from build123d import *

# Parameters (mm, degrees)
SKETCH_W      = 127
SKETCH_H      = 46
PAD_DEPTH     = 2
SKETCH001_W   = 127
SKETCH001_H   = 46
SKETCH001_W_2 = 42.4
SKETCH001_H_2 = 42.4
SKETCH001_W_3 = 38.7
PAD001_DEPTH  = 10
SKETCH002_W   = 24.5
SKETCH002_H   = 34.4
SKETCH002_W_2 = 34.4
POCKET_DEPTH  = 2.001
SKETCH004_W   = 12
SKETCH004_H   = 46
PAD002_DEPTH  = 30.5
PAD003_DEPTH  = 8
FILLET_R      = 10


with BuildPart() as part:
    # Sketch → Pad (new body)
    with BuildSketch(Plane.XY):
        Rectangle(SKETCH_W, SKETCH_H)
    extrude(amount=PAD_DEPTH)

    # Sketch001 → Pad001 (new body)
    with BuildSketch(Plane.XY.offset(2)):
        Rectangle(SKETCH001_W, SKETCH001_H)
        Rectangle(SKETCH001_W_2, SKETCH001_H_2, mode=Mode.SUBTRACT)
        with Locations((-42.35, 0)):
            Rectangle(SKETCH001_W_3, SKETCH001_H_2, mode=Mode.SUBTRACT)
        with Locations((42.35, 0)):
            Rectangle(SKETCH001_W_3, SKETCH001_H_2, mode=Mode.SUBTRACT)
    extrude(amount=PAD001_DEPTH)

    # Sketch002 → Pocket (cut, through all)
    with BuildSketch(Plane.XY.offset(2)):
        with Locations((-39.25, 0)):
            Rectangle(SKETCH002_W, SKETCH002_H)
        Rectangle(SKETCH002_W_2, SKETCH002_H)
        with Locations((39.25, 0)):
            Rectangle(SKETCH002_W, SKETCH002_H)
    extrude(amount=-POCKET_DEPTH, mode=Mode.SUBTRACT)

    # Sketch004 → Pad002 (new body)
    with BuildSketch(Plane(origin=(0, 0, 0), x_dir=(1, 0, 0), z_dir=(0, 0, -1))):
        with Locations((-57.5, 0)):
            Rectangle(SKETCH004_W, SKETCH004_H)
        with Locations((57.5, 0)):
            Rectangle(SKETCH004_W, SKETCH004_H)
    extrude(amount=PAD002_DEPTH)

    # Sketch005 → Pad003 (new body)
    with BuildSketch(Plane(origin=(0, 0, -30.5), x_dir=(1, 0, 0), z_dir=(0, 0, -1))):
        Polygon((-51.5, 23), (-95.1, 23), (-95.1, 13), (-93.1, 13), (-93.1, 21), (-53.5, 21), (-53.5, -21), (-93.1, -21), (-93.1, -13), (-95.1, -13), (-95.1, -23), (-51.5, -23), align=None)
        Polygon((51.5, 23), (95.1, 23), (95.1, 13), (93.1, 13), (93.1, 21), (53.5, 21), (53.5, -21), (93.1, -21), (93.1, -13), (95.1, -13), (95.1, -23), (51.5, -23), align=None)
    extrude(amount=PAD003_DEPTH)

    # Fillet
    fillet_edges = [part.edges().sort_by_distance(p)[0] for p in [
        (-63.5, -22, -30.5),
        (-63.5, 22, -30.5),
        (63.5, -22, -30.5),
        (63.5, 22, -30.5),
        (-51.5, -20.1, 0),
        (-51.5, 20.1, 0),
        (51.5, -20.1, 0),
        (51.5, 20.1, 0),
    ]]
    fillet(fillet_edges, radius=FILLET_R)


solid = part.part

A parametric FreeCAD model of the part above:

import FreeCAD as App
import Part
import Sketcher


def edges_at(feature, points):
    """Names of the edges that pass closest to the given points."""
    edges = feature.Shape.Edges
    near = lambda p: min(range(len(edges)), key=lambda i: edges[i].distToShape(Part.Vertex(*p))[0])
    return sorted({f"Edge{near(p) + 1}" for p in points})

doc = App.newDocument("Part")
body = doc.addObject("PartDesign::Body", "Body")

# Sketch on XY plane
sketch1 = doc.addObject("Sketcher::SketchObject", "Sketch")
body.addObject(sketch1)
sketch1.AttachmentSupport = (doc.XY_Plane, [""])
sketch1.MapMode = "FlatFace"
sketch1.addGeometry(Part.LineSegment(App.Vector(-63.5, 23, 0), App.Vector(-63.5, -23, 0)), False)
sketch1.addGeometry(Part.LineSegment(App.Vector(-63.5, -23, 0), App.Vector(63.5, -23, 0)), False)
sketch1.addGeometry(Part.LineSegment(App.Vector(63.5, -23, 0), App.Vector(63.5, 23, 0)), False)
sketch1.addGeometry(Part.LineSegment(App.Vector(63.5, 23, 0), App.Vector(-63.5, 23, 0)), False)
sketch1.addConstraint(Sketcher.Constraint("Coincident", 0, 2, 1, 1))
sketch1.addConstraint(Sketcher.Constraint("Coincident", 1, 2, 2, 1))
sketch1.addConstraint(Sketcher.Constraint("Coincident", 2, 2, 3, 1))
sketch1.addConstraint(Sketcher.Constraint("Coincident", 3, 2, 0, 1))
sketch1.addConstraint(Sketcher.Constraint("Vertical", 0))
sketch1.addConstraint(Sketcher.Constraint("Horizontal", 1))
sketch1.addConstraint(Sketcher.Constraint("Vertical", 2))
sketch1.addConstraint(Sketcher.Constraint("Horizontal", 3))
sketch1.addConstraint(Sketcher.Constraint("Symmetric", 0, 2, 2, 2, -1, 1))
sketch1.addConstraint(Sketcher.Constraint("DistanceX", 1, 1, 1, 2, 127.0))
sketch1.addConstraint(Sketcher.Constraint("DistanceY", 0, 2, 0, 1, 46.0))
pad1 = doc.addObject("PartDesign::Pad", "Pad")
body.addObject(pad1)
pad1.Profile = sketch1
pad1.Length = 2

# Sketch on XY plane
sketch2 = doc.addObject("Sketcher::SketchObject", "Sketch001")
body.addObject(sketch2)
sketch2.AttachmentSupport = (doc.XY_Plane, [""])
sketch2.MapMode = "FlatFace"
sketch2.AttachmentOffset = App.Placement(App.Vector(0, 0, 2), App.Rotation())
sketch2.addGeometry(Part.LineSegment(App.Vector(-63.5, 23, 0), App.Vector(-63.5, -23, 0)), False)
sketch2.addGeometry(Part.LineSegment(App.Vector(-63.5, -23, 0), App.Vector(63.5, -23, 0)), False)
sketch2.addGeometry(Part.LineSegment(App.Vector(63.5, -23, 0), App.Vector(63.5, 23, 0)), False)
sketch2.addGeometry(Part.LineSegment(App.Vector(63.5, 23, 0), App.Vector(-63.5, 23, 0)), False)
sketch2.addGeometry(Part.LineSegment(App.Vector(-23, -21.2, 0), App.Vector(-61.7, -21.2, 0)), False)
sketch2.addGeometry(Part.LineSegment(App.Vector(-61.7, -21.2, 0), App.Vector(-61.7, 21.2, 0)), False)
sketch2.addGeometry(Part.LineSegment(App.Vector(-61.7, 21.2, 0), App.Vector(-23, 21.2, 0)), False)
sketch2.addGeometry(Part.LineSegment(App.Vector(-23, 21.2, 0), App.Vector(-23, -21.2, 0)), False)
sketch2.addGeometry(Part.LineSegment(App.Vector(21.2, -21.2, 0), App.Vector(-21.2, -21.2, 0)), False)
sketch2.addGeometry(Part.LineSegment(App.Vector(-21.2, -21.2, 0), App.Vector(-21.2, 21.2, 0)), False)
sketch2.addGeometry(Part.LineSegment(App.Vector(-21.2, 21.2, 0), App.Vector(21.2, 21.2, 0)), False)
sketch2.addGeometry(Part.LineSegment(App.Vector(21.2, 21.2, 0), App.Vector(21.2, -21.2, 0)), False)
sketch2.addGeometry(Part.LineSegment(App.Vector(61.7, -21.2, 0), App.Vector(23, -21.2, 0)), False)
sketch2.addGeometry(Part.LineSegment(App.Vector(23, -21.2, 0), App.Vector(23, 21.2, 0)), False)
sketch2.addGeometry(Part.LineSegment(App.Vector(23, 21.2, 0), App.Vector(61.7, 21.2, 0)), False)
sketch2.addGeometry(Part.LineSegment(App.Vector(61.7, 21.2, 0), App.Vector(61.7, -21.2, 0)), False)
sketch2.addConstraint(Sketcher.Constraint("Coincident", 0, 2, 1, 1))
sketch2.addConstraint(Sketcher.Constraint("Coincident", 1, 2, 2, 1))
sketch2.addConstraint(Sketcher.Constraint("Coincident", 2, 2, 3, 1))
sketch2.addConstraint(Sketcher.Constraint("Coincident", 3, 2, 0, 1))
sketch2.addConstraint(Sketcher.Constraint("Coincident", 4, 2, 5, 1))
sketch2.addConstraint(Sketcher.Constraint("Coincident", 5, 2, 6, 1))
sketch2.addConstraint(Sketcher.Constraint("Coincident", 6, 2, 7, 1))
sketch2.addConstraint(Sketcher.Constraint("Coincident", 7, 2, 4, 1))
sketch2.addConstraint(Sketcher.Constraint("Coincident", 8, 2, 9, 1))
sketch2.addConstraint(Sketcher.Constraint("Coincident", 9, 2, 10, 1))
sketch2.addConstraint(Sketcher.Constraint("Coincident", 10, 2, 11, 1))
sketch2.addConstraint(Sketcher.Constraint("Coincident", 11, 2, 8, 1))
sketch2.addConstraint(Sketcher.Constraint("Coincident", 12, 2, 13, 1))
sketch2.addConstraint(Sketcher.Constraint("Coincident", 13, 2, 14, 1))
sketch2.addConstraint(Sketcher.Constraint("Coincident", 14, 2, 15, 1))
sketch2.addConstraint(Sketcher.Constraint("Coincident", 15, 2, 12, 1))
sketch2.addConstraint(Sketcher.Constraint("Vertical", 0))
sketch2.addConstraint(Sketcher.Constraint("Horizontal", 1))
sketch2.addConstraint(Sketcher.Constraint("Vertical", 2))
sketch2.addConstraint(Sketcher.Constraint("Horizontal", 3))
sketch2.addConstraint(Sketcher.Constraint("Horizontal", 4))
sketch2.addConstraint(Sketcher.Constraint("Vertical", 5))
sketch2.addConstraint(Sketcher.Constraint("Horizontal", 6))
sketch2.addConstraint(Sketcher.Constraint("Vertical", 7))
sketch2.addConstraint(Sketcher.Constraint("Horizontal", 8))
sketch2.addConstraint(Sketcher.Constraint("Vertical", 9))
sketch2.addConstraint(Sketcher.Constraint("Horizontal", 10))
sketch2.addConstraint(Sketcher.Constraint("Vertical", 11))
sketch2.addConstraint(Sketcher.Constraint("Horizontal", 12))
sketch2.addConstraint(Sketcher.Constraint("Vertical", 13))
sketch2.addConstraint(Sketcher.Constraint("Horizontal", 14))
sketch2.addConstraint(Sketcher.Constraint("Vertical", 15))
sketch2.addConstraint(Sketcher.Constraint("Symmetric", 0, 2, 2, 2, -1, 1))
sketch2.addConstraint(Sketcher.Constraint("Symmetric", 8, 2, 10, 2, -1, 1))
sketch2.addConstraint(Sketcher.Constraint("Symmetric", 6, 2, 12, 2, -1, 1))
sketch2.addConstraint(Sketcher.Constraint("Symmetric", 4, 2, 14, 2, -1, 1))
sketch2.addConstraint(Sketcher.Constraint("Horizontal", 7, 2, 8, 2))
sketch2.addConstraint(Sketcher.Constraint("Horizontal", 6, 2, 9, 2))
sketch2.addConstraint(Sketcher.Constraint("Equal", 10, 5))
sketch2.addConstraint(Sketcher.Constraint("DistanceX", 1, 1, 1, 2, 127.0))
sketch2.addConstraint(Sketcher.Constraint("DistanceY", 0, 2, 0, 1, 46.0))
sketch2.addConstraint(Sketcher.Constraint("DistanceX", 4, 2, 4, 1, 38.7))
sketch2.addConstraint(Sketcher.Constraint("DistanceX", 8, 2, 8, 1, 42.4))
sketch2.addConstraint(Sketcher.Constraint("DistanceX", 6, 2, -1, 1, 23.0))
pad2 = doc.addObject("PartDesign::Pad", "Pad001")
body.addObject(pad2)
pad2.Profile = sketch2
pad2.Length = 10

# Sketch on XY plane
sketch3 = doc.addObject("Sketcher::SketchObject", "Sketch002")
body.addObject(sketch3)
sketch3.AttachmentSupport = (doc.XY_Plane, [""])
sketch3.MapMode = "FlatFace"
sketch3.AttachmentOffset = App.Placement(App.Vector(0, 0, 2), App.Rotation())
sketch3.addGeometry(Part.LineSegment(App.Vector(-51.5, 17.2, 0), App.Vector(-51.5, -17.2, 0)), False)
sketch3.addGeometry(Part.LineSegment(App.Vector(-51.5, -17.2, 0), App.Vector(-27, -17.2, 0)), False)
sketch3.addGeometry(Part.LineSegment(App.Vector(-27, -17.2, 0), App.Vector(-27, 17.2, 0)), False)
sketch3.addGeometry(Part.LineSegment(App.Vector(-27, 17.2, 0), App.Vector(-51.5, 17.2, 0)), False)
sketch3.addGeometry(Part.LineSegment(App.Vector(-17.2, 17.2, 0), App.Vector(-17.2, -17.2, 0)), False)
sketch3.addGeometry(Part.LineSegment(App.Vector(-17.2, -17.2, 0), App.Vector(17.2, -17.2, 0)), False)
sketch3.addGeometry(Part.LineSegment(App.Vector(17.2, -17.2, 0), App.Vector(17.2, 17.2, 0)), False)
sketch3.addGeometry(Part.LineSegment(App.Vector(17.2, 17.2, 0), App.Vector(-17.2, 17.2, 0)), False)
sketch3.addGeometry(Part.LineSegment(App.Vector(27, 17.2, 0), App.Vector(27, -17.2, 0)), False)
sketch3.addGeometry(Part.LineSegment(App.Vector(27, -17.2, 0), App.Vector(51.5, -17.2, 0)), False)
sketch3.addGeometry(Part.LineSegment(App.Vector(51.5, -17.2, 0), App.Vector(51.5, 17.2, 0)), False)
sketch3.addGeometry(Part.LineSegment(App.Vector(51.5, 17.2, 0), App.Vector(27, 17.2, 0)), False)
sketch3.addConstraint(Sketcher.Constraint("Coincident", 0, 2, 1, 1))
sketch3.addConstraint(Sketcher.Constraint("Coincident", 1, 2, 2, 1))
sketch3.addConstraint(Sketcher.Constraint("Coincident", 2, 2, 3, 1))
sketch3.addConstraint(Sketcher.Constraint("Coincident", 3, 2, 0, 1))
sketch3.addConstraint(Sketcher.Constraint("Coincident", 4, 2, 5, 1))
sketch3.addConstraint(Sketcher.Constraint("Coincident", 5, 2, 6, 1))
sketch3.addConstraint(Sketcher.Constraint("Coincident", 6, 2, 7, 1))
sketch3.addConstraint(Sketcher.Constraint("Coincident", 7, 2, 4, 1))
sketch3.addConstraint(Sketcher.Constraint("Coincident", 8, 2, 9, 1))
sketch3.addConstraint(Sketcher.Constraint("Coincident", 9, 2, 10, 1))
sketch3.addConstraint(Sketcher.Constraint("Coincident", 10, 2, 11, 1))
sketch3.addConstraint(Sketcher.Constraint("Coincident", 11, 2, 8, 1))
sketch3.addConstraint(Sketcher.Constraint("Vertical", 0))
sketch3.addConstraint(Sketcher.Constraint("Horizontal", 1))
sketch3.addConstraint(Sketcher.Constraint("Vertical", 2))
sketch3.addConstraint(Sketcher.Constraint("Horizontal", 3))
sketch3.addConstraint(Sketcher.Constraint("Vertical", 4))
sketch3.addConstraint(Sketcher.Constraint("Horizontal", 5))
sketch3.addConstraint(Sketcher.Constraint("Vertical", 6))
sketch3.addConstraint(Sketcher.Constraint("Horizontal", 7))
sketch3.addConstraint(Sketcher.Constraint("Vertical", 8))
sketch3.addConstraint(Sketcher.Constraint("Horizontal", 9))
sketch3.addConstraint(Sketcher.Constraint("Vertical", 10))
sketch3.addConstraint(Sketcher.Constraint("Horizontal", 11))
sketch3.addConstraint(Sketcher.Constraint("Symmetric", 4, 2, 6, 2, -1, 1))
sketch3.addConstraint(Sketcher.Constraint("Symmetric", 2, 2, 8, 2, -1, 1))
sketch3.addConstraint(Sketcher.Constraint("Symmetric", 0, 2, 10, 2, -1, 1))
sketch3.addConstraint(Sketcher.Constraint("Horizontal", 1, 2, 4, 2))
sketch3.addConstraint(Sketcher.Constraint("Horizontal", 3, 2, 6, 2))
sketch3.addConstraint(Sketcher.Constraint("Equal", 7, 0))
sketch3.addConstraint(Sketcher.Constraint("DistanceX", 1, 1, 1, 2, 24.5))
sketch3.addConstraint(Sketcher.Constraint("DistanceX", 5, 1, 5, 2, 34.4))
sketch3.addConstraint(Sketcher.Constraint("DistanceX", 1, 2, -1, 1, 27.0))
pocket1 = doc.addObject("PartDesign::Pocket", "Pocket")
body.addObject(pocket1)
pocket1.Profile = sketch3
pocket1.Type = "ThroughAll"

# Sketch on XY plane
sketch4 = doc.addObject("Sketcher::SketchObject", "Sketch003")
body.addObject(sketch4)
sketch4.AttachmentSupport = (doc.XY_Plane, [""])
sketch4.MapMode = "FlatFace"
sketch4.addGeometry(Part.LineSegment(App.Vector(-63.5, -23, 0), App.Vector(-63.5, 23, 0)), False)
sketch4.addGeometry(Part.LineSegment(App.Vector(-63.5, 23, 0), App.Vector(-51.5, 23, 0)), False)
sketch4.addGeometry(Part.LineSegment(App.Vector(-51.5, 23, 0), App.Vector(-51.5, -23, 0)), False)
sketch4.addGeometry(Part.LineSegment(App.Vector(-51.5, -23, 0), App.Vector(-63.5, -23, 0)), False)
sketch4.addGeometry(Part.LineSegment(App.Vector(51.5, -23, 0), App.Vector(51.5, 23, 0)), False)
sketch4.addGeometry(Part.LineSegment(App.Vector(51.5, 23, 0), App.Vector(63.5, 23, 0)), False)
sketch4.addGeometry(Part.LineSegment(App.Vector(63.5, 23, 0), App.Vector(63.5, -23, 0)), False)
sketch4.addGeometry(Part.LineSegment(App.Vector(63.5, -23, 0), App.Vector(51.5, -23, 0)), False)
sketch4.addConstraint(Sketcher.Constraint("Coincident", 0, 2, 1, 1))
sketch4.addConstraint(Sketcher.Constraint("Coincident", 1, 2, 2, 1))
sketch4.addConstraint(Sketcher.Constraint("Coincident", 2, 2, 3, 1))
sketch4.addConstraint(Sketcher.Constraint("Coincident", 3, 2, 0, 1))
sketch4.addConstraint(Sketcher.Constraint("Coincident", 4, 2, 5, 1))
sketch4.addConstraint(Sketcher.Constraint("Coincident", 5, 2, 6, 1))
sketch4.addConstraint(Sketcher.Constraint("Coincident", 6, 2, 7, 1))
sketch4.addConstraint(Sketcher.Constraint("Coincident", 7, 2, 4, 1))
sketch4.addConstraint(Sketcher.Constraint("Vertical", 0))
sketch4.addConstraint(Sketcher.Constraint("Horizontal", 1))
sketch4.addConstraint(Sketcher.Constraint("Vertical", 2))
sketch4.addConstraint(Sketcher.Constraint("Horizontal", 3))
sketch4.addConstraint(Sketcher.Constraint("Vertical", 4))
sketch4.addConstraint(Sketcher.Constraint("Horizontal", 5))
sketch4.addConstraint(Sketcher.Constraint("Vertical", 6))
sketch4.addConstraint(Sketcher.Constraint("Horizontal", 7))
sketch4.addConstraint(Sketcher.Constraint("Symmetric", 2, 2, 4, 2, -1, 1))
sketch4.addConstraint(Sketcher.Constraint("Symmetric", 0, 2, 6, 2, -1, 1))
sketch4.addConstraint(Sketcher.Constraint("Horizontal", 1, 2, 4, 2))
sketch4.addConstraint(Sketcher.Constraint("DistanceX", 1, 1, 1, 2, 12.0))
sketch4.addConstraint(Sketcher.Constraint("DistanceY", 0, 1, 0, 2, 46.0))
sketch4.addConstraint(Sketcher.Constraint("DistanceX", 1, 2, 4, 2, 103.0))
pad3 = doc.addObject("PartDesign::Pad", "Pad002")
body.addObject(pad3)
pad3.Profile = sketch4
pad3.Length = 30.5
pad3.Reversed = True

# Sketch on XY plane
sketch5 = doc.addObject("Sketcher::SketchObject", "Sketch004")
body.addObject(sketch5)
sketch5.AttachmentSupport = (doc.XY_Plane, [""])
sketch5.MapMode = "FlatFace"
sketch5.AttachmentOffset = App.Placement(App.Vector(0, 0, -30.5), App.Rotation())
sketch5.addGeometry(Part.LineSegment(App.Vector(-51.5, -23, 0), App.Vector(-95.1, -23, 0)), False)
sketch5.addGeometry(Part.LineSegment(App.Vector(-95.1, -23, 0), App.Vector(-95.1, -13, 0)), False)
sketch5.addGeometry(Part.LineSegment(App.Vector(-95.1, -13, 0), App.Vector(-93.1, -13, 0)), False)
sketch5.addGeometry(Part.LineSegment(App.Vector(-93.1, -13, 0), App.Vector(-93.1, -21, 0)), False)
sketch5.addGeometry(Part.LineSegment(App.Vector(-93.1, -21, 0), App.Vector(-53.5, -21, 0)), False)
sketch5.addGeometry(Part.LineSegment(App.Vector(-53.5, -21, 0), App.Vector(-53.5, 21, 0)), False)
sketch5.addGeometry(Part.LineSegment(App.Vector(-53.5, 21, 0), App.Vector(-93.1, 21, 0)), False)
sketch5.addGeometry(Part.LineSegment(App.Vector(-93.1, 21, 0), App.Vector(-93.1, 13, 0)), False)
sketch5.addGeometry(Part.LineSegment(App.Vector(-93.1, 13, 0), App.Vector(-95.1, 13, 0)), False)
sketch5.addGeometry(Part.LineSegment(App.Vector(-95.1, 13, 0), App.Vector(-95.1, 23, 0)), False)
sketch5.addGeometry(Part.LineSegment(App.Vector(-95.1, 23, 0), App.Vector(-51.5, 23, 0)), False)
sketch5.addGeometry(Part.LineSegment(App.Vector(-51.5, 23, 0), App.Vector(-51.5, -23, 0)), False)
sketch5.addGeometry(Part.LineSegment(App.Vector(95.1, -23, 0), App.Vector(51.5, -23, 0)), False)
sketch5.addGeometry(Part.LineSegment(App.Vector(51.5, -23, 0), App.Vector(51.5, 23, 0)), False)
sketch5.addGeometry(Part.LineSegment(App.Vector(51.5, 23, 0), App.Vector(95.1, 23, 0)), False)
sketch5.addGeometry(Part.LineSegment(App.Vector(95.1, 23, 0), App.Vector(95.1, 13, 0)), False)
sketch5.addGeometry(Part.LineSegment(App.Vector(95.1, 13, 0), App.Vector(93.1, 13, 0)), False)
sketch5.addGeometry(Part.LineSegment(App.Vector(93.1, 13, 0), App.Vector(93.1, 21, 0)), False)
sketch5.addGeometry(Part.LineSegment(App.Vector(93.1, 21, 0), App.Vector(53.5, 21, 0)), False)
sketch5.addGeometry(Part.LineSegment(App.Vector(53.5, 21, 0), App.Vector(53.5, -21, 0)), False)
sketch5.addGeometry(Part.LineSegment(App.Vector(53.5, -21, 0), App.Vector(93.1, -21, 0)), False)
sketch5.addGeometry(Part.LineSegment(App.Vector(93.1, -21, 0), App.Vector(93.1, -13, 0)), False)
sketch5.addGeometry(Part.LineSegment(App.Vector(93.1, -13, 0), App.Vector(95.1, -13, 0)), False)
sketch5.addGeometry(Part.LineSegment(App.Vector(95.1, -13, 0), App.Vector(95.1, -23, 0)), False)
sketch5.addConstraint(Sketcher.Constraint("Coincident", 0, 2, 1, 1))
sketch5.addConstraint(Sketcher.Constraint("Coincident", 1, 2, 2, 1))
sketch5.addConstraint(Sketcher.Constraint("Coincident", 2, 2, 3, 1))
sketch5.addConstraint(Sketcher.Constraint("Coincident", 3, 2, 4, 1))
sketch5.addConstraint(Sketcher.Constraint("Coincident", 4, 2, 5, 1))
sketch5.addConstraint(Sketcher.Constraint("Coincident", 5, 2, 6, 1))
sketch5.addConstraint(Sketcher.Constraint("Coincident", 6, 2, 7, 1))
sketch5.addConstraint(Sketcher.Constraint("Coincident", 7, 2, 8, 1))
sketch5.addConstraint(Sketcher.Constraint("Coincident", 8, 2, 9, 1))
sketch5.addConstraint(Sketcher.Constraint("Coincident", 9, 2, 10, 1))
sketch5.addConstraint(Sketcher.Constraint("Coincident", 10, 2, 11, 1))
sketch5.addConstraint(Sketcher.Constraint("Coincident", 11, 2, 0, 1))
sketch5.addConstraint(Sketcher.Constraint("Coincident", 12, 2, 13, 1))
sketch5.addConstraint(Sketcher.Constraint("Coincident", 13, 2, 14, 1))
sketch5.addConstraint(Sketcher.Constraint("Coincident", 14, 2, 15, 1))
sketch5.addConstraint(Sketcher.Constraint("Coincident", 15, 2, 16, 1))
sketch5.addConstraint(Sketcher.Constraint("Coincident", 16, 2, 17, 1))
sketch5.addConstraint(Sketcher.Constraint("Coincident", 17, 2, 18, 1))
sketch5.addConstraint(Sketcher.Constraint("Coincident", 18, 2, 19, 1))
sketch5.addConstraint(Sketcher.Constraint("Coincident", 19, 2, 20, 1))
sketch5.addConstraint(Sketcher.Constraint("Coincident", 20, 2, 21, 1))
sketch5.addConstraint(Sketcher.Constraint("Coincident", 21, 2, 22, 1))
sketch5.addConstraint(Sketcher.Constraint("Coincident", 22, 2, 23, 1))
sketch5.addConstraint(Sketcher.Constraint("Coincident", 23, 2, 12, 1))
sketch5.addConstraint(Sketcher.Constraint("Horizontal", 0))
sketch5.addConstraint(Sketcher.Constraint("Vertical", 1))
sketch5.addConstraint(Sketcher.Constraint("Horizontal", 2))
sketch5.addConstraint(Sketcher.Constraint("Vertical", 3))
sketch5.addConstraint(Sketcher.Constraint("Horizontal", 4))
sketch5.addConstraint(Sketcher.Constraint("Vertical", 5))
sketch5.addConstraint(Sketcher.Constraint("Horizontal", 6))
sketch5.addConstraint(Sketcher.Constraint("Vertical", 7))
sketch5.addConstraint(Sketcher.Constraint("Horizontal", 8))
sketch5.addConstraint(Sketcher.Constraint("Vertical", 9))
sketch5.addConstraint(Sketcher.Constraint("Horizontal", 10))
sketch5.addConstraint(Sketcher.Constraint("Vertical", 11))
sketch5.addConstraint(Sketcher.Constraint("Horizontal", 12))
sketch5.addConstraint(Sketcher.Constraint("Vertical", 13))
sketch5.addConstraint(Sketcher.Constraint("Horizontal", 14))
sketch5.addConstraint(Sketcher.Constraint("Vertical", 15))
sketch5.addConstraint(Sketcher.Constraint("Horizontal", 16))
sketch5.addConstraint(Sketcher.Constraint("Vertical", 17))
sketch5.addConstraint(Sketcher.Constraint("Horizontal", 18))
sketch5.addConstraint(Sketcher.Constraint("Vertical", 19))
sketch5.addConstraint(Sketcher.Constraint("Horizontal", 20))
sketch5.addConstraint(Sketcher.Constraint("Vertical", 21))
sketch5.addConstraint(Sketcher.Constraint("Horizontal", 22))
sketch5.addConstraint(Sketcher.Constraint("Vertical", 23))
sketch5.addConstraint(Sketcher.Constraint("Symmetric", 10, 2, 12, 2, -1, 1))
sketch5.addConstraint(Sketcher.Constraint("Symmetric", 0, 2, 14, 2, -1, 1))
sketch5.addConstraint(Sketcher.Constraint("Symmetric", 2, 2, 16, 2, -1, 1))
sketch5.addConstraint(Sketcher.Constraint("Symmetric", 4, 2, 18, 2, -1, 1))
sketch5.addConstraint(Sketcher.Constraint("Symmetric", 6, 2, 20, 2, -1, 1))
sketch5.addConstraint(Sketcher.Constraint("Symmetric", 8, 2, 22, 2, -1, 1))
sketch5.addConstraint(Sketcher.Constraint("Symmetric", 9, 2, 14, 2, -2))
sketch5.addConstraint(Sketcher.Constraint("Symmetric", 7, 2, 16, 2, -2))
sketch5.addConstraint(Sketcher.Constraint("Horizontal", 6, 2, 17, 2))
sketch5.addConstraint(Sketcher.Constraint("DistanceX", 2, 1, 2, 2, 2.0))
sketch5.addConstraint(Sketcher.Constraint("DistanceY", 1, 1, 1, 2, 10.0))
sketch5.addConstraint(Sketcher.Constraint("DistanceY", 3, 2, 3, 1, 8.0))
sketch5.addConstraint(Sketcher.Constraint("DistanceY", 5, 1, 5, 2, 42.0))
sketch5.addConstraint(Sketcher.Constraint("DistanceX", 0, 2, 0, 1, 43.6))
sketch5.addConstraint(Sketcher.Constraint("DistanceX", 4, 1, 4, 2, 39.6))
sketch5.addConstraint(Sketcher.Constraint("DistanceX", 11, 2, 12, 2, 103.0))
pad4 = doc.addObject("PartDesign::Pad", "Pad003")
body.addObject(pad4)
pad4.Profile = sketch5
pad4.Length = 8
pad4.Reversed = True
doc.recompute()

fillet = doc.addObject("PartDesign::Fillet", "Fillet")
body.addObject(fillet)
fillet.Base = (pad4, edges_at(pad4, [
    (-63.5, -22, -30.5),
    (-63.5, 22, -30.5),
    (63.5, -22, -30.5),
    (63.5, 22, -30.5),
    (-51.5, -20.1, 0),
    (-51.5, 20.1, 0),
    (51.5, -20.1, 0),
    (51.5, 20.1, 0),
]))
fillet.Radius = 10

doc.recompute()
